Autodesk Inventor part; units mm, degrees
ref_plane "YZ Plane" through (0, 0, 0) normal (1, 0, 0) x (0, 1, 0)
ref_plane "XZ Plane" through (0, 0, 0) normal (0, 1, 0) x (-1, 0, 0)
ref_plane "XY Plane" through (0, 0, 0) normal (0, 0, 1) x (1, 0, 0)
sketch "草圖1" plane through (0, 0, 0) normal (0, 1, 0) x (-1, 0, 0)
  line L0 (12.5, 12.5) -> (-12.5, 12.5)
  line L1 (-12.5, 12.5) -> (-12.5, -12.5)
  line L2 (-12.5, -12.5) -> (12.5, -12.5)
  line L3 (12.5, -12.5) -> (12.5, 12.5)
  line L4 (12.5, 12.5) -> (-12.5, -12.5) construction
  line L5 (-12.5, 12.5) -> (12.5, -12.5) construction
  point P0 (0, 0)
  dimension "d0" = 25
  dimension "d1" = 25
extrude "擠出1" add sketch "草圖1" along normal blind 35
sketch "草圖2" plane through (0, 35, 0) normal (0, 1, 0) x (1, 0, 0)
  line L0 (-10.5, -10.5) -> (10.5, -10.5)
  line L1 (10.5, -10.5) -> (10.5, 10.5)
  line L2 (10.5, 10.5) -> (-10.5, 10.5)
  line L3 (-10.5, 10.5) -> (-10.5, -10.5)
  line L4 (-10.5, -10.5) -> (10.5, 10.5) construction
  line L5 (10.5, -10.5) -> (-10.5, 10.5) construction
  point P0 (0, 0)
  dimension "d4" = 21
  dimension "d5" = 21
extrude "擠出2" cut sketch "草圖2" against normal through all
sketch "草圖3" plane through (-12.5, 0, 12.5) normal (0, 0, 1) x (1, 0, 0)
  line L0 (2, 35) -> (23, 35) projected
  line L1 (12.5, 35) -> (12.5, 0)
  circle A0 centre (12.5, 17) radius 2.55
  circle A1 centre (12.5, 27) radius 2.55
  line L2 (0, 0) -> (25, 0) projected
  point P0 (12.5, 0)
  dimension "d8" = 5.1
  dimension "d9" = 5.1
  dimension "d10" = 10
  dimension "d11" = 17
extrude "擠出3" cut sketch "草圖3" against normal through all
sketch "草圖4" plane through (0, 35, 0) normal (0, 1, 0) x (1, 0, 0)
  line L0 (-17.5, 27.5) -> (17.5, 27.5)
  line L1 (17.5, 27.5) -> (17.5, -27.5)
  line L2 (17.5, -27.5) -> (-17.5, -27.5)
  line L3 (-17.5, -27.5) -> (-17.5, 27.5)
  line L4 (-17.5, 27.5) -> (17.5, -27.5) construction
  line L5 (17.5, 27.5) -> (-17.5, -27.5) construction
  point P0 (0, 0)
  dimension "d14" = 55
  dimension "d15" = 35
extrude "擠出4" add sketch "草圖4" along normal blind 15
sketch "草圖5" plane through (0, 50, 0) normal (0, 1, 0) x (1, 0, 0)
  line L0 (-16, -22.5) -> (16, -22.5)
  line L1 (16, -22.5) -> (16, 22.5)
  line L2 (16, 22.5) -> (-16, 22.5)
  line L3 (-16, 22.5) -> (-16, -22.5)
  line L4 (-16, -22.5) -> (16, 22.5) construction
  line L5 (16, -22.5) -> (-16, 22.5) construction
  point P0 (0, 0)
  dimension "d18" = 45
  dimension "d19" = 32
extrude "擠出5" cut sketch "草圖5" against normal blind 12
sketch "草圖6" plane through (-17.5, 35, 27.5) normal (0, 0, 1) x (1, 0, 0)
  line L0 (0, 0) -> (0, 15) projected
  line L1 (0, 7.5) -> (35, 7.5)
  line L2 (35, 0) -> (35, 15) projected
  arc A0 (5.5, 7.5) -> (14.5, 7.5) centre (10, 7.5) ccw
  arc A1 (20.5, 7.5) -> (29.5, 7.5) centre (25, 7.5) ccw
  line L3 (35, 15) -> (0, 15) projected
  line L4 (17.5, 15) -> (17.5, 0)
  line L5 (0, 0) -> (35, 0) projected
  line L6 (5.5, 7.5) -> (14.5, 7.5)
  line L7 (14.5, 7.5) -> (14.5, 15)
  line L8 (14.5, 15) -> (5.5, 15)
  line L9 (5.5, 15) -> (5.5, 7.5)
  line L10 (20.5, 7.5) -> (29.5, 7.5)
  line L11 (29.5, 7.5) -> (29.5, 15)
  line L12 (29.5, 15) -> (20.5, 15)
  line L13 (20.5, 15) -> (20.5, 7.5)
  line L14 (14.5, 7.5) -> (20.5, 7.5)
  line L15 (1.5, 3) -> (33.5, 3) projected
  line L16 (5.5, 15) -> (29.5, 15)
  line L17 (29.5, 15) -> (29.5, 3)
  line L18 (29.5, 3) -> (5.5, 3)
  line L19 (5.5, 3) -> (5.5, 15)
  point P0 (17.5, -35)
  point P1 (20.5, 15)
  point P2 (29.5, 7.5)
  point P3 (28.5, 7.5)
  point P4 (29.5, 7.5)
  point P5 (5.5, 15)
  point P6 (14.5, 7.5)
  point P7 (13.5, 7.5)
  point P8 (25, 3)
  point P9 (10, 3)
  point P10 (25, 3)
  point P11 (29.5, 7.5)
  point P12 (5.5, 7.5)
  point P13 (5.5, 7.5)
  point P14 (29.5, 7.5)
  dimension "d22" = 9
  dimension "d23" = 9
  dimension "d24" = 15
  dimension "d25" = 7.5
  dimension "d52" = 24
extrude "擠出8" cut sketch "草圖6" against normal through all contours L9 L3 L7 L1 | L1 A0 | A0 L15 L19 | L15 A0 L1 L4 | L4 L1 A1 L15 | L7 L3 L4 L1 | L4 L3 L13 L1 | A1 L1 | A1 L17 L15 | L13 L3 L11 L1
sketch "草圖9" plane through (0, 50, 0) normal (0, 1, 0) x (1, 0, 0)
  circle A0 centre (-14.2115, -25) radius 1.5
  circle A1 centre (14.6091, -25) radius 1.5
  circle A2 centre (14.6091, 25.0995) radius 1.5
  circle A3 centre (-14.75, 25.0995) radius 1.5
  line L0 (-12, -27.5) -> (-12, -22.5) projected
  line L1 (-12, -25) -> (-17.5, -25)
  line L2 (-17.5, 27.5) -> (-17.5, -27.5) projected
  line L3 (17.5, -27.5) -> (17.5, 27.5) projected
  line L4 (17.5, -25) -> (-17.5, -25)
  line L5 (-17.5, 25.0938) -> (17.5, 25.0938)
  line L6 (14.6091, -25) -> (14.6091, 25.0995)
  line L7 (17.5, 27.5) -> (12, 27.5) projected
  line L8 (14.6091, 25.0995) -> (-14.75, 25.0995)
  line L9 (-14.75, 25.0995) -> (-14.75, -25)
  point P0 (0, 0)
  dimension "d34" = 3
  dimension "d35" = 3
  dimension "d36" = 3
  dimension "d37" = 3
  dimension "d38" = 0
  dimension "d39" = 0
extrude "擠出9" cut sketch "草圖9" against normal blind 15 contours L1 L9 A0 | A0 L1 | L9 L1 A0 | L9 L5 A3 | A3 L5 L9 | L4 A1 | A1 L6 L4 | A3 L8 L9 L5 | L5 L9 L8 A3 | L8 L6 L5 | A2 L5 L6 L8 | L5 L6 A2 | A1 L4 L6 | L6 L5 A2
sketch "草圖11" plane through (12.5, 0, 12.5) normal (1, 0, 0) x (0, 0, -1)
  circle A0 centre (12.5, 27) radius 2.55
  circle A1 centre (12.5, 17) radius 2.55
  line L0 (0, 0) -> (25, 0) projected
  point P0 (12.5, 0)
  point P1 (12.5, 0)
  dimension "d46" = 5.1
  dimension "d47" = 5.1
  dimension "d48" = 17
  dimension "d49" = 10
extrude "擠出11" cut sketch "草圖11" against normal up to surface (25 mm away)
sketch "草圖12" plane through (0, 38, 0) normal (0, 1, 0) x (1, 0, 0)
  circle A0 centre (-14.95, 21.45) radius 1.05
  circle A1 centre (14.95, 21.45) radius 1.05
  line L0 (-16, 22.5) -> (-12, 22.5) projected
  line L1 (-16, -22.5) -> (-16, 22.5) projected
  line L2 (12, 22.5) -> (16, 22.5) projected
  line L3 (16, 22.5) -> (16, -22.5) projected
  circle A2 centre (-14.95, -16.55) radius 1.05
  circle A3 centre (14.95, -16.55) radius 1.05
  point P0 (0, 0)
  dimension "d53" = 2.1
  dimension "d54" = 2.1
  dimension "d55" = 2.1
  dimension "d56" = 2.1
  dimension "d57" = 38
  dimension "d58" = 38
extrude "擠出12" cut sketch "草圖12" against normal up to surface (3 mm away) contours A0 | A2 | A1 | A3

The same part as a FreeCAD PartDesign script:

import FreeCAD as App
import Part
import Sketcher
from FreeCAD import Vector
Q = App.Units.Quantity


def add_polygon(sketch, points):
    """Adds a closed chain of lines whose ends are joined by coincident constraints."""
    first, n = sketch.GeometryCount, len(points)
    for a, b in zip(points, points[1:] + points[:1]):
        sketch.addGeometry(Part.LineSegment(App.Vector(*a, 0), App.Vector(*b, 0)), False)
    for i in range(n):
        sketch.addConstraint(Sketcher.Constraint("Coincident", first + i, 2, first + (i + 1) % n, 1))

doc = App.newDocument("Part")
params = doc.addObject("Spreadsheet::Sheet", "Params")
for row, (alias, value) in enumerate([
    ("sketch1_width", "25 mm"),
    ("pad1_length", "35 mm"),
    ("sketch2_width", "21 mm"),
    ("sketch3_diameter", "5.1 mm"),
    ("sketch4_width", "35 mm"),
    ("sketch4_height", "55 mm"),
    ("pad2_length", "15 mm"),
    ("sketch5_width", "32 mm"),
    ("sketch5_height", "45 mm"),
    ("pocket3_length", "12 mm"),
    ("sketch6_width", "24 mm"),
    ("sketch6_height", "12 mm"),
    ("sketch7_diameter", "3 mm"),
    ("pocket5_length", "15 mm"),
    ("sketch8_diameter", "5.1 mm"),
    ("pocket6_length", "25 mm"),
    ("sketch9_diameter", "2.1 mm"),
    ("pocket7_length", "3 mm"),
], start=1):
    params.set(f"A{row}", alias)
    params.set(f"B{row}", "=" + value)
    params.setAlias(f"B{row}", alias)

body = doc.addObject("PartDesign::Body", "Body")

sketch1 = body.newObject("Sketcher::SketchObject", "Sketch")
sketch1.AttachmentSupport = (doc.getObject("XZ_Plane"), [""])
sketch1.MapMode = "FlatFace"
add_polygon(sketch1, [(-12.5, -12.5), (-12.5, 12.5), (12.5, 12.5), (12.5, -12.5)])
sketch1.addConstraint(Sketcher.Constraint("Vertical", 0))
sketch1.addConstraint(Sketcher.Constraint("Horizontal", 1))
sketch1.addConstraint(Sketcher.Constraint("Vertical", 2))
sketch1.addConstraint(Sketcher.Constraint("Horizontal", 3))
sketch1.addConstraint(Sketcher.Constraint("Symmetric", 0, 2, 2, 2, -1, 1))
sketch1.addConstraint(Sketcher.Constraint("Equal", 3, 0))
sketch1.addConstraint(Sketcher.Constraint("DistanceX", 1, 1, 1, 2, Q("25 mm")))
sketch1.setExpression("Constraints[10]", "Params.sketch1_width")
pad1 = body.newObject("PartDesign::Pad", "Pad")
pad1.Profile = sketch1
pad1.setExpression("Length", "Params.pad1_length")
pad1.Reversed = True

sketch2 = body.newObject("Sketcher::SketchObject", "Sketch001")
sketch2.AttachmentSupport = (doc.getObject("XZ_Plane"), [""])
sketch2.MapMode = "FlatFace"
sketch2.AttachmentOffset = App.Placement(Vector(0, 0, -35), App.Rotation())
add_polygon(sketch2, [(-10.5, -10.5), (-10.5, 10.5), (10.5, 10.5), (10.5, -10.5)])
sketch2.addConstraint(Sketcher.Constraint("Vertical", 0))
sketch2.addConstraint(Sketcher.Constraint("Horizontal", 1))
sketch2.addConstraint(Sketcher.Constraint("Vertical", 2))
sketch2.addConstraint(Sketcher.Constraint("Horizontal", 3))
sketch2.addConstraint(Sketcher.Constraint("Symmetric", 0, 2, 2, 2, -1, 1))
sketch2.addConstraint(Sketcher.Constraint("Equal", 3, 0))
sketch2.addConstraint(Sketcher.Constraint("DistanceX", 1, 1, 1, 2, Q("21 mm")))
sketch2.setExpression("Constraints[10]", "Params.sketch2_width")
pocket1 = body.newObject("PartDesign::Pocket", "Pocket")
pocket1.Profile = sketch2
pocket1.Type = "ThroughAll"
pocket1.Reversed = True

sketch3 = body.newObject("Sketcher::SketchObject", "Sketch002")
sketch3.AttachmentSupport = (doc.getObject("XY_Plane"), [""])
sketch3.MapMode = "FlatFace"
sketch3.AttachmentOffset = App.Placement(Vector(0, 0, 12.5), App.Rotation())
sketch3.addGeometry(Part.Circle(Vector(0, 27, 0), Vector(0, 0, 1), 2.55), False)
sketch3.addGeometry(Part.Circle(Vector(0, 17, 0), Vector(0, 0, 1), 2.55), False)
sketch3.addConstraint(Sketcher.Constraint("Equal", 0, 1))
sketch3.addConstraint(Sketcher.Constraint("PointOnObject", 0, 3, -2))
sketch3.addConstraint(Sketcher.Constraint("PointOnObject", 1, 3, -2))
sketch3.addConstraint(Sketcher.Constraint("Diameter", 0, Q("5.1 mm")))
sketch3.addConstraint(Sketcher.Constraint("DistanceY", -1, 1, 1, 3, Q("17 mm")))
sketch3.addConstraint(Sketcher.Constraint("DistanceY", 1, 3, 0, 3, Q("10 mm")))
sketch3.setExpression("Constraints[3]", "Params.sketch3_diameter")
pocket2 = body.newObject("PartDesign::Pocket", "Pocket001")
pocket2.Profile = sketch3
pocket2.Type = "ThroughAll"

sketch4 = body.newObject("Sketcher::SketchObject", "Sketch003")
sketch4.AttachmentSupport = (doc.getObject("XZ_Plane"), [""])
sketch4.MapMode = "FlatFace"
sketch4.AttachmentOffset = App.Placement(Vector(0, 0, -35), App.Rotation())
add_polygon(sketch4, [(17.5, -27.5), (-17.5, -27.5), (-17.5, 27.5), (17.5, 27.5)])
sketch4.addConstraint(Sketcher.Constraint("Horizontal", 0))
sketch4.addConstraint(Sketcher.Constraint("Vertical", 1))
sketch4.addConstraint(Sketcher.Constraint("Horizontal", 2))
sketch4.addConstraint(Sketcher.Constraint("Vertical", 3))
sketch4.addConstraint(Sketcher.Constraint("Symmetric", 0, 2, 2, 2, -1, 1))
sketch4.addConstraint(Sketcher.Constraint("DistanceX", 0, 2, 0, 1, Q("35 mm")))
sketch4.addConstraint(Sketcher.Constraint("DistanceY", 1, 1, 1, 2, Q("55 mm")))
sketch4.setExpression("Constraints[9]", "Params.sketch4_width")
sketch4.setExpression("Constraints[10]", "Params.sketch4_height")
pad2 = body.newObject("PartDesign::Pad", "Pad001")
pad2.Profile = sketch4
pad2.setExpression("Length", "Params.pad2_length")
pad2.Reversed = True

sketch5 = body.newObject("Sketcher::SketchObject", "Sketch004")
sketch5.AttachmentSupport = (doc.getObject("XZ_Plane"), [""])
sketch5.MapMode = "FlatFace"
sketch5.AttachmentOffset = App.Placement(Vector(0, 0, -50), App.Rotation())
add_polygon(sketch5, [(-16, -22.5), (-16, 22.5), (16, 22.5), (16, -22.5)])
sketch5.addConstraint(Sketcher.Constraint("Vertical", 0))
sketch5.addConstraint(Sketcher.Constraint("Horizontal", 1))
sketch5.addConstraint(Sketcher.Constraint("Vertical", 2))
sketch5.addConstraint(Sketcher.Constraint("Horizontal", 3))
sketch5.addConstraint(Sketcher.Constraint("Symmetric", 0, 2, 2, 2, -1, 1))
sketch5.addConstraint(Sketcher.Constraint("DistanceX", 1, 1, 1, 2, Q("32 mm")))
sketch5.addConstraint(Sketcher.Constraint("DistanceY", 0, 1, 0, 2, Q("45 mm")))
sketch5.setExpression("Constraints[9]", "Params.sketch5_width")
sketch5.setExpression("Constraints[10]", "Params.sketch5_height")
pocket3 = body.newObject("PartDesign::Pocket", "Pocket002")
pocket3.Profile = sketch5
pocket3.setExpression("Length", "Params.pocket3_length")
pocket3.Reversed = True

sketch6 = body.newObject("Sketcher::SketchObject", "Sketch005")
sketch6.AttachmentSupport = (doc.getObject("XY_Plane"), [""])
sketch6.MapMode = "FlatFace"
sketch6.AttachmentOffset = App.Placement(Vector(0, 0, 27.5), App.Rotation())
add_polygon(sketch6, [(-12, 50), (-12, 38), (12, 38), (12, 50)])
sketch6.addConstraint(Sketcher.Constraint("Vertical", 0))
sketch6.addConstraint(Sketcher.Constraint("Horizontal", 1))
sketch6.addConstraint(Sketcher.Constraint("Vertical", 2))
sketch6.addConstraint(Sketcher.Constraint("Horizontal", 3))
sketch6.addConstraint(Sketcher.Constraint("DistanceX", 1, 1, 1, 2, Q("24 mm")))
sketch6.addConstraint(Sketcher.Constraint("DistanceY", 0, 2, 0, 1, Q("12 mm")))
sketch6.addConstraint(Sketcher.Constraint("DistanceX", 0, 2, -1, 1, Q("12 mm")))
sketch6.addConstraint(Sketcher.Constraint("DistanceY", -1, 1, 0, 2, Q("38 mm")))
sketch6.setExpression("Constraints[8]", "Params.sketch6_width")
sketch6.setExpression("Constraints[9]", "Params.sketch6_height")
pocket4 = body.newObject("PartDesign::Pocket", "Pocket003")
pocket4.Profile = sketch6
pocket4.Type = "ThroughAll"

sketch7 = body.newObject("Sketcher::SketchObject", "Sketch006")
sketch7.AttachmentSupport = (doc.getObject("XZ_Plane"), [""])
sketch7.MapMode = "FlatFace"
sketch7.AttachmentOffset = App.Placement(Vector(0, 0, -50), App.Rotation())
sketch7.addGeometry(Part.Circle(Vector(-14.2115, 25, 0), Vector(0, 0, 1), 1.5), False)
sketch7.addGeometry(Part.Circle(Vector(-14.75, -25.0995, 0), Vector(0, 0, 1), 1.5), False)
sketch7.addGeometry(Part.Circle(Vector(14.6091, 25, 0), Vector(0, 0, 1), 1.5), False)
sketch7.addGeometry(Part.Circle(Vector(14.6091, -25.0995, 0), Vector(0, 0, 1), 1.5), False)
sketch7.addConstraint(Sketcher.Constraint("Equal", 0, 1))
sketch7.addConstraint(Sketcher.Constraint("Equal", 1, 2))
sketch7.addConstraint(Sketcher.Constraint("Equal", 2, 3))
sketch7.addConstraint(Sketcher.Constraint("Horizontal", 0, 3, 2, 3))
sketch7.addConstraint(Sketcher.Constraint("Horizontal", 1, 3, 3, 3))
sketch7.addConstraint(Sketcher.Constraint("Vertical", 2, 3, 3, 3))
sketch7.addConstraint(Sketcher.Constraint("Diameter", 0, Q("3 mm")))
sketch7.addConstraint(Sketcher.Constraint("DistanceY", -1, 1, 0, 3, Q("25 mm")))
sketch7.addConstraint(Sketcher.Constraint("DistanceX", 1, 3, -1, 1, Q("14.75 mm")))
sketch7.addConstraint(Sketcher.Constraint("DistanceX", -1, 1, 2, 3, Q("14.609 mm")))
sketch7.addConstraint(Sketcher.Constraint("DistanceX", 0, 3, -1, 1, Q("14.2115 mm")))
sketch7.addConstraint(Sketcher.Constraint("DistanceY", 1, 3, -1, 1, Q("25.0995 mm")))
sketch7.setExpression("Constraints[6]", "Params.sketch7_diameter")
pocket5 = body.newObject("PartDesign::Pocket", "Pocket004")
pocket5.Profile = sketch7
pocket5.setExpression("Length", "Params.pocket5_length")
pocket5.Reversed = True

sketch8 = body.newObject("Sketcher::SketchObject", "Sketch007")
sketch8.AttachmentSupport = (doc.getObject("YZ_Plane"), [""])
sketch8.MapMode = "FlatFace"
sketch8.AttachmentOffset = App.Placement(Vector(0, 0, 12.5), App.Rotation())
sketch8.addGeometry(Part.Circle(Vector(27, 0, 0), Vector(0, 0, 1), 2.55), False)
sketch8.addGeometry(Part.Circle(Vector(17, 0, 0), Vector(0, 0, 1), 2.55), False)
sketch8.addConstraint(Sketcher.Constraint("Equal", 0, 1))
sketch8.addConstraint(Sketcher.Constraint("PointOnObject", 0, 3, -1))
sketch8.addConstraint(Sketcher.Constraint("PointOnObject", 1, 3, -1))
sketch8.addConstraint(Sketcher.Constraint("Diameter", 0, Q("5.1 mm")))
sketch8.addConstraint(Sketcher.Constraint("DistanceX", -1, 1, 1, 3, Q("17 mm")))
sketch8.addConstraint(Sketcher.Constraint("DistanceX", 1, 3, 0, 3, Q("10 mm")))
sketch8.setExpression("Constraints[3]", "Params.sketch8_diameter")
pocket6 = body.newObject("PartDesign::Pocket", "Pocket005")
pocket6.Profile = sketch8
pocket6.setExpression("Length", "Params.pocket6_length")

sketch9 = body.newObject("Sketcher::SketchObject", "Sketch008")
sketch9.AttachmentSupport = (doc.getObject("XZ_Plane"), [""])
sketch9.MapMode = "FlatFace"
sketch9.AttachmentOffset = App.Placement(Vector(0, 0, -38), App.Rotation())
sketch9.addGeometry(Part.Circle(Vector(-14.95, -21.45, 0), Vector(0, 0, 1), 1.05), False)
sketch9.addGeometry(Part.Circle(Vector(-14.95, 16.55, 0), Vector(0, 0, 1), 1.05), False)
sketch9.addGeometry(Part.Circle(Vector(14.95, -21.45, 0), Vector(0, 0, 1), 1.05), False)
sketch9.addGeometry(Part.Circle(Vector(14.95, 16.55, 0), Vector(0, 0, 1), 1.05), False)
sketch9.addConstraint(Sketcher.Constraint("Equal", 0, 1))
sketch9.addConstraint(Sketcher.Constraint("Equal", 1, 2))
sketch9.addConstraint(Sketcher.Constraint("Equal", 2, 3))
sketch9.addConstraint(Sketcher.Constraint("Symmetric", 0, 3, 2, 3, -2))
sketch9.addConstraint(Sketcher.Constraint("Symmetric", 1, 3, 3, 3, -2))
sketch9.addConstraint(Sketcher.Constraint("Vertical", 0, 3, 1, 3))
sketch9.addConstraint(Sketcher.Constraint("Diameter", 0, Q("2.1 mm")))
sketch9.addConstraint(Sketcher.Constraint("DistanceY", 0, 3, 1, 3, Q("38 mm")))
sketch9.addConstraint(Sketcher.Constraint("DistanceX", 0, 3, 2, 3, Q("29.9 mm")))
sketch9.addConstraint(Sketcher.Constraint("DistanceY", 0, 3, -1, 1, Q("21.45 mm")))
sketch9.setExpression("Constraints[6]", "Params.sketch9_diameter")
pocket7 = body.newObject("PartDesign::Pocket", "Pocket006")
pocket7.Profile = sketch9
pocket7.setExpression("Length", "Params.pocket7_length")
pocket7.Reversed = True

doc.recompute()
